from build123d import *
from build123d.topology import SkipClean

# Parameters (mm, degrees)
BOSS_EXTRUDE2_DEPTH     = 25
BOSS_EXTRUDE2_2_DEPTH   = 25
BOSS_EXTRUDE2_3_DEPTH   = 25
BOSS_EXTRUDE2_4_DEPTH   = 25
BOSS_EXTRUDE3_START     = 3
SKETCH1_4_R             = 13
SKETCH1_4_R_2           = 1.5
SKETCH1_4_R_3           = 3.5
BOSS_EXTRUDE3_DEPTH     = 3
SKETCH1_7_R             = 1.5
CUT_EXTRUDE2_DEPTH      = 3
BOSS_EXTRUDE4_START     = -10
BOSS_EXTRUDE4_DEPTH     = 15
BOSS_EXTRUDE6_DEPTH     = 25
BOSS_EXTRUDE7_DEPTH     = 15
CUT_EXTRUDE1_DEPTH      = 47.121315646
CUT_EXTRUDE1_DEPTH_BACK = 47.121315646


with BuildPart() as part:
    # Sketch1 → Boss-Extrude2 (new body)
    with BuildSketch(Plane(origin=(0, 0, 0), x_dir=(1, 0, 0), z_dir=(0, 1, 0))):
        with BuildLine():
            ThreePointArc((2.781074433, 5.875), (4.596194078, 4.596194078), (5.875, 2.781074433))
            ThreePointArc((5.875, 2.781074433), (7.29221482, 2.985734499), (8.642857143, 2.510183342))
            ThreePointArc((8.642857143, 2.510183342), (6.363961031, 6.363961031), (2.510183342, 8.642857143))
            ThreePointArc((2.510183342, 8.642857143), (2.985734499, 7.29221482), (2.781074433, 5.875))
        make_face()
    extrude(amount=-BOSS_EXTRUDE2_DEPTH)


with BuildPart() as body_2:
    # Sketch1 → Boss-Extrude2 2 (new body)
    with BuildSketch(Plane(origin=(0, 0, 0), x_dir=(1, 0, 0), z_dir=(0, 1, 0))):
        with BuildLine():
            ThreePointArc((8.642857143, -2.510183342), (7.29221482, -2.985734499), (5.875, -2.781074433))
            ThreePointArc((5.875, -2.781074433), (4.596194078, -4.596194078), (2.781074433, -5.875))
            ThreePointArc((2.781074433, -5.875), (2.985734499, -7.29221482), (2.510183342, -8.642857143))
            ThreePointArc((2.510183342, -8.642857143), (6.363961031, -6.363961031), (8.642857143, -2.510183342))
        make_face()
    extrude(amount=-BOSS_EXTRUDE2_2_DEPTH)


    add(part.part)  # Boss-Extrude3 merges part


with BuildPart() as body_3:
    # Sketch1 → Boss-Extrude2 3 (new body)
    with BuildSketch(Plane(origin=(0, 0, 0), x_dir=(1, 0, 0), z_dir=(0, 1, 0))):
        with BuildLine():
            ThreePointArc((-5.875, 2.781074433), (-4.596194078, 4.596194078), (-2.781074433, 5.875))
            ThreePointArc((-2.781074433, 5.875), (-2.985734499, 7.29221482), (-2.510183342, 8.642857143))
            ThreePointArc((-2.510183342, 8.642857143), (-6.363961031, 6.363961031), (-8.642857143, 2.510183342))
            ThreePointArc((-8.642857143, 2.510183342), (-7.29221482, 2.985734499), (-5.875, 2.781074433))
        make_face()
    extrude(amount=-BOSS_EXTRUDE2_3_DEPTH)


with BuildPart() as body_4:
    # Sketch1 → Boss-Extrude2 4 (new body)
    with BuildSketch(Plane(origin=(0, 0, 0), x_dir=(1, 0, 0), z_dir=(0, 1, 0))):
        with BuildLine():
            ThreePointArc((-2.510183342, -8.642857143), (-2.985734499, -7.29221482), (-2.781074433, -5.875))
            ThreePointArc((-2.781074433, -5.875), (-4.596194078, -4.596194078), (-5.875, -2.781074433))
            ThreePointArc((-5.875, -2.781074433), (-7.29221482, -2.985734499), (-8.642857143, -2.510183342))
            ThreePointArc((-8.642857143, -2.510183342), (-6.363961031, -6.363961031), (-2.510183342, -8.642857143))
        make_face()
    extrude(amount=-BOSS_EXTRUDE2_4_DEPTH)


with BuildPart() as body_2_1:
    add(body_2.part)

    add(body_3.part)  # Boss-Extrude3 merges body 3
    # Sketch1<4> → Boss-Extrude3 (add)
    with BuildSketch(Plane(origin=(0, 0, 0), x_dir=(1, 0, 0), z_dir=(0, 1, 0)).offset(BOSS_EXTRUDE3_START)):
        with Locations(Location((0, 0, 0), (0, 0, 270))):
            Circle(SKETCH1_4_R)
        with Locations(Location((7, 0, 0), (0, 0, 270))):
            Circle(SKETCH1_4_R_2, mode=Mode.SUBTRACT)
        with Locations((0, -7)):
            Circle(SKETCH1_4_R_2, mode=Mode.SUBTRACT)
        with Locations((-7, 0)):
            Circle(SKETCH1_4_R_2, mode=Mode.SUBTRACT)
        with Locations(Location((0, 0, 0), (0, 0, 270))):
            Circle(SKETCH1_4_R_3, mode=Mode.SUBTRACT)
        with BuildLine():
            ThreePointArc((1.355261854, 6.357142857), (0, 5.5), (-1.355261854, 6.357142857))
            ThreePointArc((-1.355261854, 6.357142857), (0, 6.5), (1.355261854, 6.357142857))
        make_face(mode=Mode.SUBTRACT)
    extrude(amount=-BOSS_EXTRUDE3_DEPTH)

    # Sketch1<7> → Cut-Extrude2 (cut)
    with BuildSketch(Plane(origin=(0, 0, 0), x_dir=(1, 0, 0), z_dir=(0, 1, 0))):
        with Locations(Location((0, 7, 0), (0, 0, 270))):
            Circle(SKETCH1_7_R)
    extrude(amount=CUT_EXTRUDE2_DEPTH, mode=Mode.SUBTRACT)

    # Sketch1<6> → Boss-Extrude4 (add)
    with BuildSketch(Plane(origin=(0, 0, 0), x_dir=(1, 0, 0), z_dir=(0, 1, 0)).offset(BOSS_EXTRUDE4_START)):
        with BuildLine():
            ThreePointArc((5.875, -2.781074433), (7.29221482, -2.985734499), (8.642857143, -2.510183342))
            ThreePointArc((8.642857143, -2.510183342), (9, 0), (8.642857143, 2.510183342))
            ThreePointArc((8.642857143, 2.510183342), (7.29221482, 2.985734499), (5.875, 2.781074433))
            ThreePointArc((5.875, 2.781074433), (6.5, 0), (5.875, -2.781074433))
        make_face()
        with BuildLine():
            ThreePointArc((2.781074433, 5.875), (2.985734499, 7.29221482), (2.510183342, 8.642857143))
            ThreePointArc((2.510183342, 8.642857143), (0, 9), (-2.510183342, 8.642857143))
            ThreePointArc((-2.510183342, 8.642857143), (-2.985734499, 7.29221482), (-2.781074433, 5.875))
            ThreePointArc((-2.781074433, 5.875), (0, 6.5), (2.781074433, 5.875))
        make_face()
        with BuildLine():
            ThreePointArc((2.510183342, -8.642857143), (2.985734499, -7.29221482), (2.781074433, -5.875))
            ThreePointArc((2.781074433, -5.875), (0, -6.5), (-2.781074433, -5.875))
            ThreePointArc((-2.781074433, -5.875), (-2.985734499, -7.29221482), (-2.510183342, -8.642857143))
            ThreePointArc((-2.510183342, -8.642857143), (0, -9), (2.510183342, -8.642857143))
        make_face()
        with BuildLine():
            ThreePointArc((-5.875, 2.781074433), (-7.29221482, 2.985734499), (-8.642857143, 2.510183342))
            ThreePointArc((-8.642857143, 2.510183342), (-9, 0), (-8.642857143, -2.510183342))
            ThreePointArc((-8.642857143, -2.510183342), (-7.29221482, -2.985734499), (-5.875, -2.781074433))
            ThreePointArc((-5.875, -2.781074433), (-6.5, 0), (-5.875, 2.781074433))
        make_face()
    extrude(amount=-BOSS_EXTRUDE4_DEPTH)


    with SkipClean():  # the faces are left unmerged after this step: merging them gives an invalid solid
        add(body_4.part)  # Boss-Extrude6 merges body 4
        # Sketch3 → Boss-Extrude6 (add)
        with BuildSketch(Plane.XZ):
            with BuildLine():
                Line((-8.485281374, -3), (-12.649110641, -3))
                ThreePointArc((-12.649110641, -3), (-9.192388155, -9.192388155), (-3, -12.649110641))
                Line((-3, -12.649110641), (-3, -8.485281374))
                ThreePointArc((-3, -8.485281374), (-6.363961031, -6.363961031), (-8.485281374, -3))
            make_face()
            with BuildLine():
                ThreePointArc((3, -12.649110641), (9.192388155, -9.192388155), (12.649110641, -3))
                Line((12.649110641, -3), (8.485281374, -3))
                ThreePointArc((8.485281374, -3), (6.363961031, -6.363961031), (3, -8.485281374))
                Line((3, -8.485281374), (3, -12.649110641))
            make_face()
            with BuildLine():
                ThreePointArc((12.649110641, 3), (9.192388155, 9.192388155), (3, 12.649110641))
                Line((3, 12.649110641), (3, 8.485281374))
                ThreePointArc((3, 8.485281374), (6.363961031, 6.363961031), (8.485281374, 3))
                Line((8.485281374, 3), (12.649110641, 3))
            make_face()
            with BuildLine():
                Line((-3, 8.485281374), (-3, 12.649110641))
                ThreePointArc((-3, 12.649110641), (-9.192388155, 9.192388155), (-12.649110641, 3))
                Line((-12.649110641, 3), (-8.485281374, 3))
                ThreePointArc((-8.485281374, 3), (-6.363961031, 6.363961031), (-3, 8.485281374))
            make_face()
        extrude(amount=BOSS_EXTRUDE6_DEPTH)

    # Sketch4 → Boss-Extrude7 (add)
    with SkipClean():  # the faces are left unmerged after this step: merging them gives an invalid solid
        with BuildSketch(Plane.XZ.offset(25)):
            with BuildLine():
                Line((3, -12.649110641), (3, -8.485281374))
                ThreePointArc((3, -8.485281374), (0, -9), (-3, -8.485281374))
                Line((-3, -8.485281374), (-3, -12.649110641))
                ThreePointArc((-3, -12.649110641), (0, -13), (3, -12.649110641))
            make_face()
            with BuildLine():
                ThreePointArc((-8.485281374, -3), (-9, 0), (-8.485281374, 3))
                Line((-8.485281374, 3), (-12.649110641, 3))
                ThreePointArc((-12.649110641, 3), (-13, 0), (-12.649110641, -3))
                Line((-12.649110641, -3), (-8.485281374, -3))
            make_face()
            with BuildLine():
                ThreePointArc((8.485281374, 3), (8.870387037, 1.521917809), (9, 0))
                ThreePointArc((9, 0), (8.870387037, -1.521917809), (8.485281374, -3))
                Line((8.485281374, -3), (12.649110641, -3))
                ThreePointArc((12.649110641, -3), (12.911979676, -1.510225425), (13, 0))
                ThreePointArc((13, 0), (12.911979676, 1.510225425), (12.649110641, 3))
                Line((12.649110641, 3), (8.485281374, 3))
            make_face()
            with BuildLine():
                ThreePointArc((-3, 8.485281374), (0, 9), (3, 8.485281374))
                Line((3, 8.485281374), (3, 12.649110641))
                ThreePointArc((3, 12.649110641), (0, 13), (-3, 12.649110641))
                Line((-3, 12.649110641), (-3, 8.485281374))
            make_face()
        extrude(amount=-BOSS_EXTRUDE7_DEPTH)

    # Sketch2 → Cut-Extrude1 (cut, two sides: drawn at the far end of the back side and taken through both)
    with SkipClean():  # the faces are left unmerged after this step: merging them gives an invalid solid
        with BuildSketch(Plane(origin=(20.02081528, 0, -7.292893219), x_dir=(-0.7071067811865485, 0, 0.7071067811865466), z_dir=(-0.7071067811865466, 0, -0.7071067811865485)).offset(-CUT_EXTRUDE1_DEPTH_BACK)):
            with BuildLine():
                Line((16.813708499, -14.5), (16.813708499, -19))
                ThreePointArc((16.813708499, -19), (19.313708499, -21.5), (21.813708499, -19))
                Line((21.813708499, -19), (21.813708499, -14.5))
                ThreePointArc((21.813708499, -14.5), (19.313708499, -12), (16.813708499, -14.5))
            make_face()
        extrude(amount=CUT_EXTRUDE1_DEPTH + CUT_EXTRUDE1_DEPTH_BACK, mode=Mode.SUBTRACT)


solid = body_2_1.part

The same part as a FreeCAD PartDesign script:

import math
import FreeCAD as App
import Part
import Sketcher

V = App.Vector

doc = App.newDocument("Part")
params = doc.addObject("Spreadsheet::Sheet", "Params")
for row, (alias, value) in enumerate([
    ("sketch1_radius", "3 mm"),
    ("sketch1_radius2", "9 mm"),
    ("sketch1_radius3", "6.5 mm"),
    ("pad1_length", "25 mm"),
    ("sketch2_radius", "3 mm"),
    ("sketch2_radius2", "9 mm"),
    ("sketch2_radius3", "6.5 mm"),
    ("pad2_length", "25 mm"),
    ("sketch3_radius", "3 mm"),
    ("sketch3_radius2", "9 mm"),
    ("sketch3_radius3", "6.5 mm"),
    ("pad3_length", "25 mm"),
    ("sketch4_radius", "3 mm"),
    ("sketch4_radius2", "9 mm"),
    ("sketch4_radius3", "6.5 mm"),
    ("pad4_length", "25 mm"),
    ("sketch5_diameter", "26 mm"),
    ("sketch5_diameter2", "3 mm"),
    ("sketch5_diameter3", "7 mm"),
    ("sketch5_radius", "6.5 mm"),
    ("pad5_length", "3 mm"),
    ("sketch6_diameter", "3 mm"),
    ("pocket1_length", "3 mm"),
    ("sketch7_radius", "3 mm"),
    ("sketch7_radius2", "9 mm"),
    ("sketch7_radius3", "6.5 mm"),
    ("pad6_length", "15 mm"),
    ("sketch8_radius", "13 mm"),
    ("sketch8_radius2", "9 mm"),
    ("pad7_length", "25 mm"),
    ("sketch9_radius", "9 mm"),
    ("sketch9_radius2", "13 mm"),
    ("pad8_length", "15 mm"),
    ("sketch10_radius", "2.5 mm"),
    ("sketch10_height", "4.5 mm"),
], start=1):
    params.set(f"A{row}", alias)
    params.set(f"B{row}", "=" + value)
    params.setAlias(f"B{row}", alias)

body = doc.addObject("PartDesign::Body", "Body")

sketch1 = doc.addObject("Sketcher::SketchObject", "Sketch")
body.addObject(sketch1)
sketch1.AttachmentSupport = (doc.XZ_Plane, [""])
sketch1.MapMode = "FlatFace"
sketch1.addGeometry([
    Part.ArcOfCircle(Part.Circle(V(0, 0, 0), V(0, 0, 1), 6.5), math.radians(-64.668325), math.radians(-25.331675)),
    Part.ArcOfCircle(Part.Circle(V(7, 0, 0), V(0, 0, 1), 3), math.radians(-112.024313), math.radians(-56.796178)),
    Part.ArcOfCircle(Part.Circle(V(0, 0, 0), V(0, 0, 1), 9), math.radians(-73.804883), math.radians(-16.195117)),
    Part.ArcOfCircle(Part.Circle(V(0, -7, 0), V(0, 0, 1), 3), math.radians(-33.203822), math.radians(22.024313)),
], False)
sketch1.addConstraint([
    Sketcher.Constraint("Coincident", 0, 2, 1, 1),
    Sketcher.Constraint("Coincident", 1, 2, 2, 2),
    Sketcher.Constraint("Coincident", 2, 1, 3, 1),
    Sketcher.Constraint("Coincident", 3, 2, 0, 1),
    Sketcher.Constraint("Coincident", 0, 3, -1, 1),
    Sketcher.Constraint("Coincident", 2, 3, -1, 1),
    Sketcher.Constraint("Equal", 1, 3),
    Sketcher.Constraint("PointOnObject", 1, 3, -1),
    Sketcher.Constraint("PointOnObject", 3, 3, -2),
    Sketcher.Constraint("Radius", 1, 3.0),
    Sketcher.Constraint("Radius", 2, 9.0),
    Sketcher.Constraint("Radius", 0, 6.5),
    Sketcher.Constraint("DistanceX", -1, 1, 1, 3, 7.0),
    Sketcher.Constraint("DistanceY", 3, 3, -1, 1, 7.0),
])
sketch1.setExpression("Constraints[9]", "Params.sketch1_radius")
sketch1.setExpression("Constraints[10]", "Params.sketch1_radius2")
sketch1.setExpression("Constraints[11]", "Params.sketch1_radius3")
pad1 = doc.addObject("PartDesign::Pad", "Pad")
body.addObject(pad1)
pad1.Profile = sketch1
pad1.setExpression("Length", "Params.pad1_length")
body2 = doc.addObject("PartDesign::Body", "Body001")
body2.AllowCompound = True

sketch2 = doc.addObject("Sketcher::SketchObject", "Sketch001")
body2.addObject(sketch2)
sketch2.AttachmentSupport = (doc.getObject("XZ_Plane001"), [""])
sketch2.MapMode = "FlatFace"
sketch2.addGeometry([
    Part.ArcOfCircle(Part.Circle(V(7, 0, 0), V(0, 0, 1), 3), math.radians(56.796178), math.radians(112.024313)),
    Part.ArcOfCircle(Part.Circle(V(0, 0, 0), V(0, 0, 1), 6.5), math.radians(25.331675), math.radians(64.668325)),
    Part.ArcOfCircle(Part.Circle(V(0, 7, 0), V(0, 0, 1), 3), math.radians(-22.024313), math.radians(33.203822)),
    Part.ArcOfCircle(Part.Circle(V(0, 0, 0), V(0, 0, 1), 9), math.radians(16.195117), math.radians(73.804883)),
], False)
sketch2.addConstraint([
    Sketcher.Constraint("Coincident", 0, 2, 1, 1),
    Sketcher.Constraint("Coincident", 1, 2, 2, 1),
    Sketcher.Constraint("Coincident", 2, 2, 3, 2),
    Sketcher.Constraint("Coincident", 3, 1, 0, 1),
    Sketcher.Constraint("Coincident", 1, 3, -1, 1),
    Sketcher.Constraint("Coincident", 3, 3, -1, 1),
    Sketcher.Constraint("Equal", 0, 2),
    Sketcher.Constraint("PointOnObject", 0, 3, -1),
    Sketcher.Constraint("PointOnObject", 2, 3, -2),
    Sketcher.Constraint("Radius", 0, 3.0),
    Sketcher.Constraint("Radius", 3, 9.0),
    Sketcher.Constraint("Radius", 1, 6.5),
    Sketcher.Constraint("DistanceX", -1, 1, 0, 3, 7.0),
    Sketcher.Constraint("DistanceY", -1, 1, 2, 3, 7.0),
])
sketch2.setExpression("Constraints[9]", "Params.sketch2_radius")
sketch2.setExpression("Constraints[10]", "Params.sketch2_radius2")
sketch2.setExpression("Constraints[11]", "Params.sketch2_radius3")
pad2 = doc.addObject("PartDesign::Pad", "Pad001")
body2.addObject(pad2)
pad2.Profile = sketch2
pad2.setExpression("Length", "Params.pad2_length")
doc.recompute()

boolean = doc.addObject("PartDesign::Boolean", "Boolean")
body2.addObject(boolean)
boolean.Type = "Fuse"
boolean.addObjects([body])
body3 = doc.addObject("PartDesign::Body", "Body002")

sketch3 = doc.addObject("Sketcher::SketchObject", "Sketch002")
body3.addObject(sketch3)
sketch3.AttachmentSupport = (doc.getObject("XZ_Plane002"), [""])
sketch3.MapMode = "FlatFace"
sketch3.addGeometry([
    Part.ArcOfCircle(Part.Circle(V(0, 0, 0), V(0, 0, 1), 6.5), math.radians(-154.668325), math.radians(-115.331675)),
    Part.ArcOfCircle(Part.Circle(V(0, -7, 0), V(0, 0, 1), 3), math.radians(157.975687), math.radians(213.203822)),
    Part.ArcOfCircle(Part.Circle(V(0, 0, 0), V(0, 0, 1), 9), math.radians(-163.804883), math.radians(-106.195117)),
    Part.ArcOfCircle(Part.Circle(V(-7, 0, 0), V(0, 0, 1), 3), math.radians(-123.203822), math.radians(-67.975687)),
], False)
sketch3.addConstraint([
    Sketcher.Constraint("Coincident", 0, 2, 1, 1),
    Sketcher.Constraint("Coincident", 1, 2, 2, 2),
    Sketcher.Constraint("Coincident", 2, 1, 3, 1),
    Sketcher.Constraint("Coincident", 3, 2, 0, 1),
    Sketcher.Constraint("Coincident", 0, 3, -1, 1),
    Sketcher.Constraint("Coincident", 2, 3, -1, 1),
    Sketcher.Constraint("Equal", 1, 3),
    Sketcher.Constraint("PointOnObject", 1, 3, -2),
    Sketcher.Constraint("PointOnObject", 3, 3, -1),
    Sketcher.Constraint("Radius", 1, 3.0),
    Sketcher.Constraint("Radius", 2, 9.0),
    Sketcher.Constraint("Radius", 0, 6.5),
    Sketcher.Constraint("DistanceY", 1, 3, -1, 1, 7.0),
    Sketcher.Constraint("DistanceX", 3, 3, -1, 1, 7.0),
])
sketch3.setExpression("Constraints[9]", "Params.sketch3_radius")
sketch3.setExpression("Constraints[10]", "Params.sketch3_radius2")
sketch3.setExpression("Constraints[11]", "Params.sketch3_radius3")
pad3 = doc.addObject("PartDesign::Pad", "Pad002")
body3.addObject(pad3)
pad3.Profile = sketch3
pad3.setExpression("Length", "Params.pad3_length")
body4 = doc.addObject("PartDesign::Body", "Body003")

sketch4 = doc.addObject("Sketcher::SketchObject", "Sketch003")
body4.addObject(sketch4)
sketch4.AttachmentSupport = (doc.getObject("XZ_Plane003"), [""])
sketch4.MapMode = "FlatFace"
sketch4.addGeometry([
    Part.ArcOfCircle(Part.Circle(V(0, 7, 0), V(0, 0, 1), 3), math.radians(146.796178), math.radians(202.024313)),
    Part.ArcOfCircle(Part.Circle(V(0, 0, 0), V(0, 0, 1), 6.5), math.radians(115.331675), math.radians(154.668325)),
    Part.ArcOfCircle(Part.Circle(V(-7, 0, 0), V(0, 0, 1), 3), math.radians(67.975687), math.radians(123.203822)),
    Part.ArcOfCircle(Part.Circle(V(0, 0, 0), V(0, 0, 1), 9), math.radians(106.195117), math.radians(163.804883)),
], False)
sketch4.addConstraint([
    Sketcher.Constraint("Coincident", 0, 2, 1, 1),
    Sketcher.Constraint("Coincident", 1, 2, 2, 1),
    Sketcher.Constraint("Coincident", 2, 2, 3, 2),
    Sketcher.Constraint("Coincident", 3, 1, 0, 1),
    Sketcher.Constraint("Coincident", 1, 3, -1, 1),
    Sketcher.Constraint("Coincident", 3, 3, -1, 1),
    Sketcher.Constraint("Equal", 0, 2),
    Sketcher.Constraint("PointOnObject", 0, 3, -2),
    Sketcher.Constraint("PointOnObject", 2, 3, -1),
    Sketcher.Constraint("Radius", 0, 3.0),
    Sketcher.Constraint("Radius", 3, 9.0),
    Sketcher.Constraint("Radius", 1, 6.5),
    Sketcher.Constraint("DistanceY", -1, 1, 0, 3, 7.0),
    Sketcher.Constraint("DistanceX", 2, 3, -1, 1, 7.0),
])
sketch4.setExpression("Constraints[9]", "Params.sketch4_radius")
sketch4.setExpression("Constraints[10]", "Params.sketch4_radius2")
sketch4.setExpression("Constraints[11]", "Params.sketch4_radius3")
pad4 = doc.addObject("PartDesign::Pad", "Pad003")
body4.addObject(pad4)
pad4.Profile = sketch4
pad4.setExpression("Length", "Params.pad4_length")
body2.AllowCompound = True
doc.recompute()

boolean2 = doc.addObject("PartDesign::Boolean", "Boolean001")
body2.addObject(boolean2)
boolean2.Type = "Fuse"
boolean2.addObjects([body3])

sketch5 = doc.addObject("Sketcher::SketchObject", "Sketch004")
body2.addObject(sketch5)
sketch5.AttachmentSupport = (doc.getObject("XZ_Plane001"), [""])
sketch5.MapMode = "FlatFace"
sketch5.AttachmentOffset = App.Placement(V(0, 0, -3), App.Rotation())
sketch5.addGeometry([
    Part.Circle(V(0, 0, 0), V(0, 0, 1), 13),
    Part.Circle(V(-7, 0, 0), V(0, 0, 1), 1.5),
    Part.ArcOfCircle(Part.Circle(V(0, 0, 0), V(0, 0, 1), 6.5), math.radians(-102.03457), math.radians(-77.96543)),
    Part.ArcOfCircle(Part.Circle(V(0, -7, 0), V(0, 0, 1), 1.5), math.radians(25.376934), math.radians(154.623066)),
    Part.Circle(V(0, 0, 0), V(0, 0, 1), 3.5),
    Part.Circle(V(7, 0, 0), V(0, 0, 1), 1.5),
    Part.Circle(V(0, 7, 0), V(0, 0, 1), 1.5),
], False)
sketch5.addConstraint([
    Sketcher.Constraint("Coincident", 2, 1, 3, 2),
    Sketcher.Constraint("Coincident", 3, 1, 2, 2),
    Sketcher.Constraint("Coincident", 0, 3, -1, 1),
    Sketcher.Constraint("Coincident", 2, 3, -1, 1),
    Sketcher.Constraint("Coincident", 4, 3, -1, 1),
    Sketcher.Constraint("Equal", 1, 3),
    Sketcher.Constraint("Equal", 3, 5),
    Sketcher.Constraint("Equal", 5, 6),
    Sketcher.Constraint("Symmetric", 1, 3, 5, 3, -1, 1),
    Sketcher.Constraint("Symmetric", 3, 3, 6, 3, -1, 1),
    Sketcher.Constraint("PointOnObject", 1, 3, -1),
    Sketcher.Constraint("PointOnObject", 3, 3, -2),
    Sketcher.Constraint("Diameter", 0, 26.0),
    Sketcher.Constraint("Diameter", 1, 3.0),
    Sketcher.Constraint("Diameter", 4, 7.0),
    Sketcher.Constraint("Radius", 2, 6.5),
    Sketcher.Constraint("DistanceX", 1, 3, -1, 1, 7.0),
    Sketcher.Constraint("DistanceY", 3, 3, -1, 1, 7.0),
])
sketch5.setExpression("Constraints[12]", "Params.sketch5_diameter")
sketch5.setExpression("Constraints[13]", "Params.sketch5_diameter2")
sketch5.setExpression("Constraints[14]", "Params.sketch5_diameter3")
sketch5.setExpression("Constraints[15]", "Params.sketch5_radius")
pad5 = doc.addObject("PartDesign::Pad", "Pad004")
body2.addObject(pad5)
pad5.Profile = sketch5
pad5.setExpression("Length", "Params.pad5_length")

sketch6 = doc.addObject("Sketcher::SketchObject", "Sketch005")
body2.addObject(sketch6)
sketch6.AttachmentSupport = (doc.getObject("XZ_Plane001"), [""])
sketch6.MapMode = "FlatFace"
sketch6.addGeometry(Part.Circle(V(0, -7, 0), V(0, 0, 1), 1.5), False)
sketch6.addConstraint([
    Sketcher.Constraint("PointOnObject", 0, 3, -2),
    Sketcher.Constraint("Diameter", 0, 3.0),
    Sketcher.Constraint("DistanceY", 0, 3, -1, 1, 7.0),
])
sketch6.setExpression("Constraints[1]", "Params.sketch6_diameter")
pocket1 = doc.addObject("PartDesign::Pocket", "Pocket")
body2.addObject(pocket1)
pocket1.Profile = sketch6
pocket1.setExpression("Length", "Params.pocket1_length")

sketch7 = doc.addObject("Sketcher::SketchObject", "Sketch006")
body2.addObject(sketch7)
sketch7.AttachmentSupport = (doc.getObject("XZ_Plane001"), [""])
sketch7.MapMode = "FlatFace"
sketch7.AttachmentOffset = App.Placement(V(0, 0, 10), App.Rotation())
sketch7.addGeometry([
    Part.ArcOfCircle(Part.Circle(V(7, 0, 0), V(0, 0, 1), 3), math.radians(56.796178), math.radians(112.024313)),
    Part.ArcOfCircle(Part.Circle(V(0, 0, 0), V(0, 0, 1), 9), math.radians(-16.195117), math.radians(16.195117)),
    Part.ArcOfCircle(Part.Circle(V(7, 0, 0), V(0, 0, 1), 3), math.radians(-112.024313), math.radians(-56.796178)),
    Part.ArcOfCircle(Part.Circle(V(0, 0, 0), V(0, 0, 1), 6.5), math.radians(-25.331675), math.radians(25.331675)),
    Part.ArcOfCircle(Part.Circle(V(0, -7, 0), V(0, 0, 1), 3), math.radians(-33.203822), math.radians(22.024313)),
    Part.ArcOfCircle(Part.Circle(V(0, 0, 0), V(0, 0, 1), 9), math.radians(-106.195117), math.radians(-73.804883)),
    Part.ArcOfCircle(Part.Circle(V(0, -7, 0), V(0, 0, 1), 3), math.radians(157.975687), math.radians(213.203822)),
    Part.ArcOfCircle(Part.Circle(V(0, 0, 0), V(0, 0, 1), 6.5), math.radians(-115.331675), math.radians(-64.668325)),
    Part.ArcOfCircle(Part.Circle(V(0, 7, 0), V(0, 0, 1), 3), math.radians(-22.024313), math.radians(33.203822)),
    Part.ArcOfCircle(Part.Circle(V(0, 0, 0), V(0, 0, 1), 6.5), math.radians(64.668325), math.radians(115.331675)),
    Part.ArcOfCircle(Part.Circle(V(0, 7, 0), V(0, 0, 1), 3), math.radians(146.796178), math.radians(202.024313)),
    Part.ArcOfCircle(Part.Circle(V(0, 0, 0), V(0, 0, 1), 9), math.radians(73.804883), math.radians(106.195117)),
    Part.ArcOfCircle(Part.Circle(V(-7, 0, 0), V(0, 0, 1), 3), math.radians(-123.203822), math.radians(-67.975687)),
    Part.ArcOfCircle(Part.Circle(V(0, 0, 0), V(0, 0, 1), 9), math.radians(163.804883), math.radians(196.195117)),
    Part.ArcOfCircle(Part.Circle(V(-7, 0, 0), V(0, 0, 1), 3), math.radians(67.975687), math.radians(123.203822)),
    Part.ArcOfCircle(Part.Circle(V(0, 0, 0), V(0, 0, 1), 6.5), math.radians(154.668325), math.radians(205.331675)),
], False)
sketch7.addConstraint([
    Sketcher.Constraint("Coincident", 0, 1, 1, 2),
    Sketcher.Constraint("Coincident", 1, 1, 2, 2),
    Sketcher.Constraint("Coincident", 2, 1, 3, 1),
    Sketcher.Constraint("Coincident", 3, 2, 0, 2),
    Sketcher.Constraint("Coincident", 4, 1, 5, 2),
    Sketcher.Constraint("Coincident", 5, 1, 6, 2),
    Sketcher.Constraint("Coincident", 6, 1, 7, 1),
    Sketcher.Constraint("Coincident", 7, 2, 4, 2),
    Sketcher.Constraint("Coincident", 8, 1, 9, 1),
    Sketcher.Constraint("Coincident", 9, 2, 10, 2),
    Sketcher.Constraint("Coincident", 10, 1, 11, 2),
    Sketcher.Constraint("Coincident", 11, 1, 8, 2),
    Sketcher.Constraint("Coincident", 12, 1, 13, 2),
    Sketcher.Constraint("Coincident", 13, 1, 14, 2),
    Sketcher.Constraint("Coincident", 14, 1, 15, 1),
    Sketcher.Constraint("Coincident", 15, 2, 12, 2),
    Sketcher.Constraint("Coincident", 1, 3, -1, 1),
    Sketcher.Constraint("Coincident", 3, 3, -1, 1),
    Sketcher.Constraint("Coincident", 5, 3, -1, 1),
    Sketcher.Constraint("Coincident", 7, 3, -1, 1),
    Sketcher.Constraint("Coincident", 9, 3, -1, 1),
    Sketcher.Constraint("Coincident", 11, 3, -1, 1),
    Sketcher.Constraint("Coincident", 13, 3, -1, 1),
    Sketcher.Constraint("Coincident", 15, 3, -1, 1),
    Sketcher.Constraint("Coincident", 2, 3, 0, 3),
    Sketcher.Constraint("Coincident", 6, 3, 4, 3),
    Sketcher.Constraint("Coincident", 10, 3, 8, 3),
    Sketcher.Constraint("Coincident", 14, 3, 12, 3),
    Sketcher.Constraint("Equal", 0, 2),
    Sketcher.Constraint("Equal", 2, 4),
    Sketcher.Constraint("Equal", 1, 5),
    Sketcher.Constraint("Equal", 4, 6),
    Sketcher.Constraint("Equal", 3, 7),
    Sketcher.Constraint("Equal", 6, 8),
    Sketcher.Constraint("Equal", 7, 9),
    Sketcher.Constraint("Equal", 8, 10),
    Sketcher.Constraint("Equal", 5, 11),
    Sketcher.Constraint("Equal", 10, 12),
    Sketcher.Constraint("Equal", 11, 13),
    Sketcher.Constraint("Equal", 12, 14),
    Sketcher.Constraint("Equal", 9, 15),
    Sketcher.Constraint("Symmetric", 4, 3, 8, 3, -1, 1),
    Sketcher.Constraint("Symmetric", 0, 3, 12, 3, -1, 1),
    Sketcher.Constraint("PointOnObject", 0, 3, -1),
    Sketcher.Constraint("PointOnObject", 4, 3, -2),
    Sketcher.Constraint("Radius", 0, 3.0),
    Sketcher.Constraint("Radius", 1, 9.0),
    Sketcher.Constraint("Radius", 3, 6.5),
    Sketcher.Constraint("DistanceX", -1, 1, 0, 3, 7.0),
    Sketcher.Constraint("DistanceY", 4, 3, -1, 1, 7.0),
])
sketch7.setExpression("Constraints[45]", "Params.sketch7_radius")
sketch7.setExpression("Constraints[46]", "Params.sketch7_radius2")
sketch7.setExpression("Constraints[47]", "Params.sketch7_radius3")
pad6 = doc.addObject("PartDesign::Pad", "Pad005")
body2.addObject(pad6)
pad6.Profile = sketch7
pad6.setExpression("Length", "Params.pad6_length")
doc.recompute()

boolean3 = doc.addObject("PartDesign::Boolean", "Boolean002")
body2.addObject(boolean3)
boolean3.Type = "Fuse"
boolean3.addObjects([body4])

sketch8 = doc.addObject("Sketcher::SketchObject", "Sketch007")
body2.addObject(sketch8)
sketch8.AttachmentSupport = (doc.getObject("XZ_Plane001"), [""])
sketch8.MapMode = "FlatFace"
sketch8.addGeometry([
    Part.LineSegment(V(-8.485281, -3, 0), V(-12.649111, -3, 0)),
    Part.ArcOfCircle(Part.Circle(V(0, 0, 0), V(0, 0, 1), 13), math.radians(-166.657636), math.radians(-103.342364)),
    Part.LineSegment(V(-3, -12.649111, 0), V(-3, -8.485281, 0)),
    Part.ArcOfCircle(Part.Circle(V(0, 0, 0), V(0, 0, 1), 9), math.radians(-160.528779), math.radians(-109.471221)),
    Part.ArcOfCircle(Part.Circle(V(0, 0, 0), V(0, 0, 1), 13), math.radians(-76.657636), math.radians(-13.342364)),
    Part.LineSegment(V(12.649111, -3, 0), V(8.485281, -3, 0)),
    Part.ArcOfCircle(Part.Circle(V(0, 0, 0), V(0, 0, 1), 9), math.radians(-70.528779), math.radians(-19.471221)),
    Part.LineSegment(V(3, -8.485281, 0), V(3, -12.649111, 0)),
    Part.ArcOfCircle(Part.Circle(V(0, 0, 0), V(0, 0, 1), 13), math.radians(13.342364), math.radians(76.657636)),
    Part.LineSegment(V(3, 12.649111, 0), V(3, 8.485281, 0)),
    Part.ArcOfCircle(Part.Circle(V(0, 0, 0), V(0, 0, 1), 9), math.radians(19.471221), math.radians(70.528779)),
    Part.LineSegment(V(8.485281, 3, 0), V(12.649111, 3, 0)),
    Part.LineSegment(V(-3, 8.485281, 0), V(-3, 12.649111, 0)),
    Part.ArcOfCircle(Part.Circle(V(0, 0, 0), V(0, 0, 1), 13), math.radians(103.342364), math.radians(166.657636)),
    Part.LineSegment(V(-12.649111, 3, 0), V(-8.485281, 3, 0)),
    Part.ArcOfCircle(Part.Circle(V(0, 0, 0), V(0, 0, 1), 9), math.radians(109.471221), math.radians(160.528779)),
], False)
sketch8.addConstraint([
    Sketcher.Constraint("Coincident", 0, 2, 1, 1),
    Sketcher.Constraint("Coincident", 1, 2, 2, 1),
    Sketcher.Constraint("Coincident", 2, 2, 3, 2),
    Sketcher.Constraint("Coincident", 3, 1, 0, 1),
    Sketcher.Constraint("Coincident", 4, 2, 5, 1),
    Sketcher.Constraint("Coincident", 5, 2, 6, 2),
    Sketcher.Constraint("Coincident", 6, 1, 7, 1),
    Sketcher.Constraint("Coincident", 7, 2, 4, 1),
    Sketcher.Constraint("Coincident", 8, 2, 9, 1),
    Sketcher.Constraint("Coincident", 9, 2, 10, 2),
    Sketcher.Constraint("Coincident", 10, 1, 11, 1),
    Sketcher.Constraint("Coincident", 11, 2, 8, 1),
    Sketcher.Constraint("Coincident", 12, 2, 13, 1),
    Sketcher.Constraint("Coincident", 13, 2, 14, 1),
    Sketcher.Constraint("Coincident", 14, 2, 15, 2),
    Sketcher.Constraint("Coincident", 15, 1, 12, 1),
    Sketcher.Constraint("Horizontal", 0),
    Sketcher.Constraint("Vertical", 2),
    Sketcher.Constraint("Horizontal", 5),
    Sketcher.Constraint("Vertical", 7),
    Sketcher.Constraint("Vertical", 9),
    Sketcher.Constraint("Horizontal", 11),
    Sketcher.Constraint("Vertical", 12),
    Sketcher.Constraint("Horizontal", 14),
    Sketcher.Constraint("Coincident", 1, 3, -1, 1),
    Sketcher.Constraint("Coincident", 3, 3, -1, 1),
    Sketcher.Constraint("Coincident", 4, 3, -1, 1),
    Sketcher.Constraint("Coincident", 6, 3, -1, 1),
    Sketcher.Constraint("Coincident", 8, 3, -1, 1),
    Sketcher.Constraint("Coincident", 10, 3, -1, 1),
    Sketcher.Constraint("Coincident", 13, 3, -1, 1),
    Sketcher.Constraint("Coincident", 15, 3, -1, 1),
    Sketcher.Constraint("Equal", 1, 4),
    Sketcher.Constraint("Equal", 3, 6),
    Sketcher.Constraint("Equal", 4, 8),
    Sketcher.Constraint("Equal", 6, 10),
    Sketcher.Constraint("Equal", 8, 13),
    Sketcher.Constraint("Equal", 10, 15),
    Sketcher.Constraint("Horizontal", 3, 1, 4, 2),
    Sketcher.Constraint("Horizontal", 2, 2, 6, 1),
    Sketcher.Constraint("Horizontal", 8, 2, 12, 2),
    Sketcher.Constraint("Horizontal", 11, 2, 13, 2),
    Sketcher.Constraint("Vertical", 7, 2, 8, 2),
    Sketcher.Constraint("Vertical", 5, 2, 10, 1),
    Sketcher.Constraint("Equal", 14, 2),
    Sketcher.Constraint("Radius", 1, 13.0),
    Sketcher.Constraint("Radius", 3, 9.0),
    Sketcher.Constraint("DistanceY", 0, 2, -1, 1, 3.0),
])
sketch8.setExpression("Constraints[45]", "Params.sketch8_radius")
sketch8.setExpression("Constraints[46]", "Params.sketch8_radius2")
pad7 = doc.addObject("PartDesign::Pad", "Pad006")
body2.addObject(pad7)
pad7.Profile = sketch8
pad7.setExpression("Length", "Params.pad7_length")

sketch9 = doc.addObject("Sketcher::SketchObject", "Sketch008")
body2.addObject(sketch9)
sketch9.AttachmentSupport = (doc.getObject("XZ_Plane001"), [""])
sketch9.MapMode = "FlatFace"
sketch9.AttachmentOffset = App.Placement(V(0, 0, 25), App.Rotation())
sketch9.addGeometry([
    Part.LineSegment(V(3, -12.649111, 0), V(3, -8.485281, 0)),
    Part.ArcOfCircle(Part.Circle(V(0, 0, 0), V(0, 0, 1), 9), math.radians(-109.471221), math.radians(-70.528779)),
    Part.LineSegment(V(-3, -8.485281, 0), V(-3, -12.649111, 0)),
    Part.ArcOfCircle(Part.Circle(V(0, 0, 0), V(0, 0, 1), 13), math.radians(-103.342364), math.radians(-76.657636)),
    Part.ArcOfCircle(Part.Circle(V(0, 0, 0), V(0, 0, 1), 9), math.radians(160.528779), math.radians(199.471221)),
    Part.LineSegment(V(-8.485281, 3, 0), V(-12.649111, 3, 0)),
    Part.ArcOfCircle(Part.Circle(V(0, 0, 0), V(0, 0, 1), 13), math.radians(166.657636), math.radians(193.342364)),
    Part.LineSegment(V(-12.649111, -3, 0), V(-8.485281, -3, 0)),
    Part.ArcOfCircle(Part.Circle(V(0, 0, 0), V(0, 0, 1), 9), math.radians(0), math.radians(19.471221)),
    Part.ArcOfCircle(Part.Circle(V(0, 0, 0), V(0, 0, 1), 9), math.radians(-19.471221), math.radians(0)),
    Part.LineSegment(V(8.485281, -3, 0), V(12.649111, -3, 0)),
    Part.ArcOfCircle(Part.Circle(V(0, 0, 0), V(0, 0, 1), 13), math.radians(-13.342364), math.radians(0)),
    Part.ArcOfCircle(Part.Circle(V(0, 0, 0), V(0, 0, 1), 13), math.radians(0), math.radians(13.342364)),
    Part.LineSegment(V(12.649111, 3, 0), V(8.485281, 3, 0)),
    Part.ArcOfCircle(Part.Circle(V(0, 0, 0), V(0, 0, 1), 9), math.radians(70.528779), math.radians(109.471221)),
    Part.LineSegment(V(3, 8.485281, 0), V(3, 12.649111, 0)),
    Part.ArcOfCircle(Part.Circle(V(0, 0, 0), V(0, 0, 1), 13), math.radians(76.657636), math.radians(103.342364)),
    Part.LineSegment(V(-3, 12.649111, 0), V(-3, 8.485281, 0)),
], False)
sketch9.addConstraint([
    Sketcher.Constraint("Coincident", 0, 2, 1, 2),
    Sketcher.Constraint("Coincident", 1, 1, 2, 1),
    Sketcher.Constraint("Coincident", 2, 2, 3, 1),
    Sketcher.Constraint("Coincident", 3, 2, 0, 1),
    Sketcher.Constraint("Coincident", 4, 1, 5, 1),
    Sketcher.Constraint("Coincident", 5, 2, 6, 1),
    Sketcher.Constraint("Coincident", 6, 2, 7, 1),
    Sketcher.Constraint("Coincident", 7, 2, 4, 2),
    Sketcher.Constraint("Tangent", 8, 1, 9, 2),
    Sketcher.Constraint("Coincident", 9, 1, 10, 1),
    Sketcher.Constraint("Coincident", 10, 2, 11, 1),
    Sketcher.Constraint("Tangent", 11, 2, 12, 1),
    Sketcher.Constraint("Coincident", 12, 2, 13, 1),
    Sketcher.Constraint("Coincident", 13, 2, 8, 2),
    Sketcher.Constraint("Coincident", 14, 1, 15, 1),
    Sketcher.Constraint("Coincident", 15, 2, 16, 1),
    Sketcher.Constraint("Coincident", 16, 2, 17, 1),
    Sketcher.Constraint("Coincident", 17, 2, 14, 2),
    Sketcher.Constraint("Vertical", 0),
    Sketcher.Constraint("Vertical", 2),
    Sketcher.Constraint("Horizontal", 5),
    Sketcher.Constraint("Horizontal", 7),
    Sketcher.Constraint("Horizontal", 10),
    Sketcher.Constraint("Horizontal", 13),
    Sketcher.Constraint("Vertical", 15),
    Sketcher.Constraint("Vertical", 17),
    Sketcher.Constraint("Coincident", 1, 3, -1, 1),
    Sketcher.Constraint("Coincident", 3, 3, -1, 1),
    Sketcher.Constraint("Coincident", 4, 3, -1, 1),
    Sketcher.Constraint("Coincident", 6, 3, -1, 1),
    Sketcher.Constraint("Coincident", 8, 3, -1, 1),
    Sketcher.Constraint("Coincident", 11, 3, -1, 1),
    Sketcher.Constraint("Coincident", 14, 3, -1, 1),
    Sketcher.Constraint("Coincident", 16, 3, -1, 1),
    Sketcher.Constraint("Equal", 1, 4),
    Sketcher.Constraint("Equal", 3, 6),
    Sketcher.Constraint("Equal", 4, 8),
    Sketcher.Constraint("Equal", 8, 9),
    Sketcher.Constraint("Equal", 6, 11),
    Sketcher.Constraint("Equal", 11, 12),
    Sketcher.Constraint("Equal", 9, 14),
    Sketcher.Constraint("Equal", 12, 16),
    Sketcher.Constraint("PointOnObject", 8, 1, -1),
    Sketcher.Constraint("PointOnObject", 11, 2, -1),
    Sketcher.Constraint("Horizontal", 0, 2, 1, 1),
    Sketcher.Constraint("Horizontal", 7, 2, 9, 1),
    Sketcher.Constraint("Horizontal", 5, 2, 12, 2),
    Sketcher.Constraint("Horizontal", 15, 2, 16, 2),
    Sketcher.Constraint("Vertical", 5, 2, 6, 2),
    Sketcher.Constraint("Vertical", 3, 2, 14, 1),
    Sketcher.Constraint("Equal", 13, 0),
    Sketcher.Constraint("Radius", 1, 9.0),
    Sketcher.Constraint("Radius", 3, 13.0),
    Sketcher.Constraint("DistanceX", -1, 1, 0, 2, 3.0),
])
sketch9.setExpression("Constraints[51]", "Params.sketch9_radius")
sketch9.setExpression("Constraints[52]", "Params.sketch9_radius2")
pad8 = doc.addObject("PartDesign::Pad", "Pad007")
body2.addObject(pad8)
pad8.Profile = sketch9
pad8.setExpression("Length", "Params.pad8_length")
pad8.Reversed = True

sketch10 = doc.addObject("Sketcher::SketchObject", "Sketch009")
body2.addObject(sketch10)
sketch10.Placement = App.Placement(V(20.020815, 0, -7.292893), App.Rotation(V(-0.707106781, 0, 0.707106781), V(0, 0.999999999, 0), V(-0.707106781, 0, -0.707106781), "ZXY"))
sketch10.addGeometry([
    Part.LineSegment(V(16.813708, -14.5, 0), V(16.813708, -19, 0)),
    Part.ArcOfCircle(Part.Circle(V(19.313708, -19, 0), V(0, 0, 1), 2.5), math.radians(180), math.radians(360)),
    Part.LineSegment(V(21.813708, -19, 0), V(21.813708, -14.5, 0)),
    Part.ArcOfCircle(Part.Circle(V(19.313708, -14.5, 0), V(0, 0, 1), 2.5), math.radians(0), math.radians(180)),
], False)
sketch10.addConstraint([
    Sketcher.Constraint("Tangent", 0, 2, 1, 1),
    Sketcher.Constraint("Tangent", 1, 2, 2, 1),
    Sketcher.Constraint("Tangent", 2, 2, 3, 1),
    Sketcher.Constraint("Tangent", 3, 2, 0, 1),
    Sketcher.Constraint("Vertical", 0),
    Sketcher.Constraint("Vertical", 2),
    Sketcher.Constraint("Radius", 1, 2.5),
    Sketcher.Constraint("DistanceY", 0, 2, 0, 1, 4.5),
    Sketcher.Constraint("DistanceY", 1, 3, -1, 1, 19.0),
    Sketcher.Constraint("DistanceX", -1, 1, 1, 3, 19.313708),
])
sketch10.setExpression("Constraints[6]", "Params.sketch10_radius")
sketch10.setExpression("Constraints[7]", "Params.sketch10_height")
pocket2 = doc.addObject("PartDesign::Pocket", "Pocket001")
body2.addObject(pocket2)
pocket2.Profile = sketch10
pocket2.Type = "ThroughAll"
pocket2.Midplane = True

doc.recompute()
